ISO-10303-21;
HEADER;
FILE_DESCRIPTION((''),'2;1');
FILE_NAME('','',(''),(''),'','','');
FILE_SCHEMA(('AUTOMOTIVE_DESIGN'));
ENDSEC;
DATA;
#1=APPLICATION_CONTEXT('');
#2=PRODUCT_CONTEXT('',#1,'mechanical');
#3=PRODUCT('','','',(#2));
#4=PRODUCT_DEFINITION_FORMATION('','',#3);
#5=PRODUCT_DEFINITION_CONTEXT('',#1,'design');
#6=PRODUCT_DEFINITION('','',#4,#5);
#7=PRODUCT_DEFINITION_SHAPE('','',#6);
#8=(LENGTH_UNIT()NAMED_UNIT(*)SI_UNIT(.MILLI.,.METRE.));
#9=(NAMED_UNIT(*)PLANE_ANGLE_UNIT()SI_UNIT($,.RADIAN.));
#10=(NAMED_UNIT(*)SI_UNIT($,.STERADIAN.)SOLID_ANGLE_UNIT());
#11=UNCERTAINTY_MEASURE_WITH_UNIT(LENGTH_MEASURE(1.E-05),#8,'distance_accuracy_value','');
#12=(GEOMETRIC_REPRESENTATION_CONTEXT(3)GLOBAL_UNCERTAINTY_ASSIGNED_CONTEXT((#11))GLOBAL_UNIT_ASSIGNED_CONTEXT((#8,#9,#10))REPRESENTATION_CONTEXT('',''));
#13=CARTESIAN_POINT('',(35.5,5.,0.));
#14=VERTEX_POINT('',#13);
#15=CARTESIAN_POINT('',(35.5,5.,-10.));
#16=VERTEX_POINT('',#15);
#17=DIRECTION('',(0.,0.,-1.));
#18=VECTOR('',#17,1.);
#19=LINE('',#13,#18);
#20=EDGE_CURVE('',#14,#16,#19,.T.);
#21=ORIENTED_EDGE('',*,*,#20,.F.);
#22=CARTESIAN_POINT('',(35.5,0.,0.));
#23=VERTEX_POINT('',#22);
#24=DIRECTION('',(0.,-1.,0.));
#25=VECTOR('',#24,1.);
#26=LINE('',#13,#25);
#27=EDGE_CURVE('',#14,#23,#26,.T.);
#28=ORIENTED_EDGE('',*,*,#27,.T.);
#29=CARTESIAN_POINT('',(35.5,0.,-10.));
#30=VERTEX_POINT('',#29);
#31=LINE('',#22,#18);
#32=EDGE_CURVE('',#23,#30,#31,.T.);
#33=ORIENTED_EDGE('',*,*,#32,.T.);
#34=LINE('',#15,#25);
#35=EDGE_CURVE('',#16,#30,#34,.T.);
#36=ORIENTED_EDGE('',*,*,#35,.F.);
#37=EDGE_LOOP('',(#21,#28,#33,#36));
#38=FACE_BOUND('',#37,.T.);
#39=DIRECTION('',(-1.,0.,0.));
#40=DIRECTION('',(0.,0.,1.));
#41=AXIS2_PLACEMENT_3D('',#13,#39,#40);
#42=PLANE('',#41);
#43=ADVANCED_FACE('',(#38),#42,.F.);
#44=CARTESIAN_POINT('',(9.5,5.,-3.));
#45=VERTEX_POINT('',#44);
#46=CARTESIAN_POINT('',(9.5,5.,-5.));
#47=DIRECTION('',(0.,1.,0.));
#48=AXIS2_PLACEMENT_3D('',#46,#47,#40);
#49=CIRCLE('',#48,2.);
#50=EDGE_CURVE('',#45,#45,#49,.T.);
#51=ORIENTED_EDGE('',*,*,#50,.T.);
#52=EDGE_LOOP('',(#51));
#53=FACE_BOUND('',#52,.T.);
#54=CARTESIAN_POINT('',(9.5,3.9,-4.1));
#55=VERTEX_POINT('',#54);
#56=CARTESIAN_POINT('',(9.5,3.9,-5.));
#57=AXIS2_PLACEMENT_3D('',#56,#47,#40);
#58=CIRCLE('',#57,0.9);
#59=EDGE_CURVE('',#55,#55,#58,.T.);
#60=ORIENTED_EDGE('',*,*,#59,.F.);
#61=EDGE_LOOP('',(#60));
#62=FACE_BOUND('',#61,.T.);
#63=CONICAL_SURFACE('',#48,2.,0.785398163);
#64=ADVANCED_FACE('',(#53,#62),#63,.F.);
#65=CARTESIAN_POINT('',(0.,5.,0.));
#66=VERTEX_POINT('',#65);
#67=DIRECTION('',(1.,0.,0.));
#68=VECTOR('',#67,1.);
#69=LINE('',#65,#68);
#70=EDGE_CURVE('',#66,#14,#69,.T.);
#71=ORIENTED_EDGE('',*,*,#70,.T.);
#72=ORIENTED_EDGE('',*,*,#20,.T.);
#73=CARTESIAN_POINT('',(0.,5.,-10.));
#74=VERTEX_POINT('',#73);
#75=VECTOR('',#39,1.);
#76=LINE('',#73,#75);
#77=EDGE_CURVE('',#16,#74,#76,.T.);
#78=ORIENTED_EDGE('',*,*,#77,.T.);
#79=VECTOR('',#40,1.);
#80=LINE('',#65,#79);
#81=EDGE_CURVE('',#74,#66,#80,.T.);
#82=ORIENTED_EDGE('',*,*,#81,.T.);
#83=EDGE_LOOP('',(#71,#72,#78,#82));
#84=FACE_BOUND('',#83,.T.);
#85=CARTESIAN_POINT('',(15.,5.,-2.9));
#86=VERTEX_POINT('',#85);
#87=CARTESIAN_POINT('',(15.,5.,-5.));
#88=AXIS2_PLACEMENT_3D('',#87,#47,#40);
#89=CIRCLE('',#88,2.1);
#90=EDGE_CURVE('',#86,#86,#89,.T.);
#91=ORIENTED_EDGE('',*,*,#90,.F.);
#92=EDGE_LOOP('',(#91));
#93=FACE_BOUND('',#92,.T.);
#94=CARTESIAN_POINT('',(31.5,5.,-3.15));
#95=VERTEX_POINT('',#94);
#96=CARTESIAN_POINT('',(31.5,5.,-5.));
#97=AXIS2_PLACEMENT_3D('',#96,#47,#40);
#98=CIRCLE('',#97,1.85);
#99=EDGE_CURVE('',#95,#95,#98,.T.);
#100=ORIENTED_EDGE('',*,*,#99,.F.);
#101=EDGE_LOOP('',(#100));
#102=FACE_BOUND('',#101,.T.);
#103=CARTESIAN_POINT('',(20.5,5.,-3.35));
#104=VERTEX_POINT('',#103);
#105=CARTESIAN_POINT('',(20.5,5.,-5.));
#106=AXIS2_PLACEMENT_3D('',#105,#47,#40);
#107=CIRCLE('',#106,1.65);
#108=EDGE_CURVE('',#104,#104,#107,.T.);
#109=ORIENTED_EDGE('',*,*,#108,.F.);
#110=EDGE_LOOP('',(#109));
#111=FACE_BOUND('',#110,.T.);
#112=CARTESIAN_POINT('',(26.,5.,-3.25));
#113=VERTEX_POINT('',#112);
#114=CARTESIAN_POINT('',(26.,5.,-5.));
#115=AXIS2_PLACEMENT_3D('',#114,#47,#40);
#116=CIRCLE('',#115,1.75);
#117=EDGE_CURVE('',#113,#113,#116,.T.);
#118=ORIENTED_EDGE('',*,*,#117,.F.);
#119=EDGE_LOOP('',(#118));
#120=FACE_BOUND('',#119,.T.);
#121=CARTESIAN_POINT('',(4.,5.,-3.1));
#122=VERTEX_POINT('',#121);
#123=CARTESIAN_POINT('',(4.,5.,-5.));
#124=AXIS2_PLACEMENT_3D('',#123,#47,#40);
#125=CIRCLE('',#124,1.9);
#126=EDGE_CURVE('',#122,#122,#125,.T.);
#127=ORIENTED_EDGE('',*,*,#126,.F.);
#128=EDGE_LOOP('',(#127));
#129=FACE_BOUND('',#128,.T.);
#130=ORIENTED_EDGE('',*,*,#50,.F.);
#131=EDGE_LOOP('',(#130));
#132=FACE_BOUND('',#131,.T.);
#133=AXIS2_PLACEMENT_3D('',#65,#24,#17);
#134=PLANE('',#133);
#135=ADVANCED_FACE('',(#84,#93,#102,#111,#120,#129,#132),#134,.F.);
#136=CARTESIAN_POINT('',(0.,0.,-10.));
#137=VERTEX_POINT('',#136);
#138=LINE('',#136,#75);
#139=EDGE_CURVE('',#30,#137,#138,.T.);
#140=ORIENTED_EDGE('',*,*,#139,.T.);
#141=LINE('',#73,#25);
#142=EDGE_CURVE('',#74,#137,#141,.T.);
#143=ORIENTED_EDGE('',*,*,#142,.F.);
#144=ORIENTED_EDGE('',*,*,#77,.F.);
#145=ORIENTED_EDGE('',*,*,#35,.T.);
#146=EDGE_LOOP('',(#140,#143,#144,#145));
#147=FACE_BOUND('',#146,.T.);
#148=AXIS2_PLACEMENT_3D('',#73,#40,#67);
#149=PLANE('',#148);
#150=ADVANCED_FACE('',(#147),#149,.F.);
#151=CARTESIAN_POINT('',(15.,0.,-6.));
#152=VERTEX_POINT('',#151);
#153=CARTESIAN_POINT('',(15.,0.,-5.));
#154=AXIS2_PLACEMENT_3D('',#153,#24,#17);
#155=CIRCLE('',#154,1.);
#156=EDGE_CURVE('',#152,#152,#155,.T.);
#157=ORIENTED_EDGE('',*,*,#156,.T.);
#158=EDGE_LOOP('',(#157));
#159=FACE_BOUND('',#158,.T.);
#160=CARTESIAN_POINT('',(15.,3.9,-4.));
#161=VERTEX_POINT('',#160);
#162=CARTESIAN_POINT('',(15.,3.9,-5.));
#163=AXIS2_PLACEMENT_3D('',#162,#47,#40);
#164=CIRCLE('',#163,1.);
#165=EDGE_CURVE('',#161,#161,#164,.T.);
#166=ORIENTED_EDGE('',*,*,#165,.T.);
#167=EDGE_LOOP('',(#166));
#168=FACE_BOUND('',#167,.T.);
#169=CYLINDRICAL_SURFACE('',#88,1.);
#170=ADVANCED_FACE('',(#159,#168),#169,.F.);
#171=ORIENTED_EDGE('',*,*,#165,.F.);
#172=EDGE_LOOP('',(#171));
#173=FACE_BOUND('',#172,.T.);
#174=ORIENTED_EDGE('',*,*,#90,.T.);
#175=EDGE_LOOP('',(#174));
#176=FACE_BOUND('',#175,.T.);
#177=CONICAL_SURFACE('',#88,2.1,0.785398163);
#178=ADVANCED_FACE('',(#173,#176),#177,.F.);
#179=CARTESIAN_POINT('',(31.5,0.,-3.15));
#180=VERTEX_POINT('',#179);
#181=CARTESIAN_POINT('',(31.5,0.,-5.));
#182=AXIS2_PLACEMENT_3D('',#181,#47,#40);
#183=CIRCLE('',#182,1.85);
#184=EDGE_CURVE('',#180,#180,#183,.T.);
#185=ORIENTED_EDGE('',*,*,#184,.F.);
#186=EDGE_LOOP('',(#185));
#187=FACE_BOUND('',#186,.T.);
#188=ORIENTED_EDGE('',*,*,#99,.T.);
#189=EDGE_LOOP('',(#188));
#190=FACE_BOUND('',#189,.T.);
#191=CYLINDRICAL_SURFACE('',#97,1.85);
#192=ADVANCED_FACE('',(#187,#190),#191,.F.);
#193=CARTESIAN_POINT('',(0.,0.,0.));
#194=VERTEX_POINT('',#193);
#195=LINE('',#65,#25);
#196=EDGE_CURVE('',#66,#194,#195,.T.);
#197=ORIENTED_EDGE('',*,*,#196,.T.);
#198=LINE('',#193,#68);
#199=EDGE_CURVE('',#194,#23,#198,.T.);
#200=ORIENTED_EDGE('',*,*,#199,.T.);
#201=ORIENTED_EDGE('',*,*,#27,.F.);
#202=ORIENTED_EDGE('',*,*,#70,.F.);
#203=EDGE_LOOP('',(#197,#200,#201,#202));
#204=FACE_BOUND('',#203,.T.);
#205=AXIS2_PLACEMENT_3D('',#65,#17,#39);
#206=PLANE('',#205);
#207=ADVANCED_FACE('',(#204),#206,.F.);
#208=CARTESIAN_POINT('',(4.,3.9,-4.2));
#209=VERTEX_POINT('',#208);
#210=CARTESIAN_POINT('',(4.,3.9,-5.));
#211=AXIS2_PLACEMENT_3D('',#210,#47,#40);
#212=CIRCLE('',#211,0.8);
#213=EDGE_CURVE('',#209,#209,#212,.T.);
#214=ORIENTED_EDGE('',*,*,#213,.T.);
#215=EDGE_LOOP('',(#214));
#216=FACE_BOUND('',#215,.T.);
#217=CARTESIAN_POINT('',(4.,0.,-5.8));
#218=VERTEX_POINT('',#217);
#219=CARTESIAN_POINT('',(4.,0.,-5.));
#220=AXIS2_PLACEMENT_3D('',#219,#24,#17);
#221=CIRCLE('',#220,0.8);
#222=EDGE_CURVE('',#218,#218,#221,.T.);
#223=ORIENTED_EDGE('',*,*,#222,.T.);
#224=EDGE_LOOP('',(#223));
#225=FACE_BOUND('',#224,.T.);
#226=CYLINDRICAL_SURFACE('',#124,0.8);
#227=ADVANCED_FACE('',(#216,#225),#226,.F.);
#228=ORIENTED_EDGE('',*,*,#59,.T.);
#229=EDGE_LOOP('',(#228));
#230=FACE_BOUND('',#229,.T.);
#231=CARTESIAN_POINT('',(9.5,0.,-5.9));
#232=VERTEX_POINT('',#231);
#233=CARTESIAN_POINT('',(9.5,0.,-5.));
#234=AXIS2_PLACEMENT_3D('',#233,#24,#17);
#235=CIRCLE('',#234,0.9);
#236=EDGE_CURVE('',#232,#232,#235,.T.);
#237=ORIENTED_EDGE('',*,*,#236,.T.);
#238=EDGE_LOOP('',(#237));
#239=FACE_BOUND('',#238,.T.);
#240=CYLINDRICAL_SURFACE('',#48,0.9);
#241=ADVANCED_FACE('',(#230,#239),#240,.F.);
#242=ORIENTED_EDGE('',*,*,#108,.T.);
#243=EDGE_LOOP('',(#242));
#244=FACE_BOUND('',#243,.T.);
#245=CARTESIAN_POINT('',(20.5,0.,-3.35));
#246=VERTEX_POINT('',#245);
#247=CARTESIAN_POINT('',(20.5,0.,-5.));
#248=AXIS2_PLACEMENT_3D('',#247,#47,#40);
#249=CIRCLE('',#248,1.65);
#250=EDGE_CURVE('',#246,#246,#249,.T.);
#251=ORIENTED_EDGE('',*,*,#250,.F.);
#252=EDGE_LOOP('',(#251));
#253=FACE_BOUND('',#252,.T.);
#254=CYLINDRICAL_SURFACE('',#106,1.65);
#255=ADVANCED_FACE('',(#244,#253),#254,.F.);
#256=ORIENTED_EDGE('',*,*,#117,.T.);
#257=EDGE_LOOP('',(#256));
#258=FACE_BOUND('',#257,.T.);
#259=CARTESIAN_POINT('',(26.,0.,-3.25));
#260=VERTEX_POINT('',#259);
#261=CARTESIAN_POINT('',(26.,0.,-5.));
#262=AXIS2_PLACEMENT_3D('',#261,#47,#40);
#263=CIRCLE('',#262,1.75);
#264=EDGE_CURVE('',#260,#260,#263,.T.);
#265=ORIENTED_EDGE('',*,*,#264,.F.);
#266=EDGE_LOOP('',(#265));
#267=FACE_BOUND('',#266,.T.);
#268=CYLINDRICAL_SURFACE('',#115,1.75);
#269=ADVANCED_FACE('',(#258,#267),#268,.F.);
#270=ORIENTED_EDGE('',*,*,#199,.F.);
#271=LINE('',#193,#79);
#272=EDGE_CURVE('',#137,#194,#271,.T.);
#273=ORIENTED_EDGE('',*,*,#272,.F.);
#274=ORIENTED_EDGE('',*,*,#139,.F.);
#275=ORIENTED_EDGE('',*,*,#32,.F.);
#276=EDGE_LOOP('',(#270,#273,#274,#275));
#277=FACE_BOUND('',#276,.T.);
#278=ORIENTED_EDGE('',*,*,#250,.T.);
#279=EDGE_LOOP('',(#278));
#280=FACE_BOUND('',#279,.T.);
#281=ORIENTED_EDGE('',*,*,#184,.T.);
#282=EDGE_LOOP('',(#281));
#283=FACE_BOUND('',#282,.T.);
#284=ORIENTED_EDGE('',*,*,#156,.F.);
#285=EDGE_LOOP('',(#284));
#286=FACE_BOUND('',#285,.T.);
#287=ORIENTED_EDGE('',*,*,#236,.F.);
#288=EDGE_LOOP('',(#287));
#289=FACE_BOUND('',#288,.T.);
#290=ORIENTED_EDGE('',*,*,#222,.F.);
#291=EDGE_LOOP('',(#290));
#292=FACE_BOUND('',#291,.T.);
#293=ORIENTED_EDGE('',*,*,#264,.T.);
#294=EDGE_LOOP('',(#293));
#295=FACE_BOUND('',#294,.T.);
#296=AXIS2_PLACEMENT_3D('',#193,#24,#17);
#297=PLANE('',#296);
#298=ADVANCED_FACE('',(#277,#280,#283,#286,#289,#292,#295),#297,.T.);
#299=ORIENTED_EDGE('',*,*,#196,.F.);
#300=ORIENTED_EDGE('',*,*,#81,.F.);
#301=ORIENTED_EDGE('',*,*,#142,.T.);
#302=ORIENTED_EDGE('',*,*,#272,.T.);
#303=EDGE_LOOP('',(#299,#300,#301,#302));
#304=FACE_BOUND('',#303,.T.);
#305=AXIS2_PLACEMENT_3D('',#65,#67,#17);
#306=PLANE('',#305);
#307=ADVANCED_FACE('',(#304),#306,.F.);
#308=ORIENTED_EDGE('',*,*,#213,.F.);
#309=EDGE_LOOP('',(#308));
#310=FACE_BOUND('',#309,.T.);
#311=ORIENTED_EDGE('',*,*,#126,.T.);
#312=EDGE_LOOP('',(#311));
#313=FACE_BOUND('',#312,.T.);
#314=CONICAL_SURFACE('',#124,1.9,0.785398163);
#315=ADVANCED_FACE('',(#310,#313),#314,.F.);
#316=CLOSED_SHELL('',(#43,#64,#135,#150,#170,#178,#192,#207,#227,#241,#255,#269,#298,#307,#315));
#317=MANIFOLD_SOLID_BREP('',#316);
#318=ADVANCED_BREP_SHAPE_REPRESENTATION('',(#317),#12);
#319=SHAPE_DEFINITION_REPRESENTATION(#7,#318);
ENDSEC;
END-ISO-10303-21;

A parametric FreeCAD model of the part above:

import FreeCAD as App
import Part
import Sketcher
Q = App.Units.Quantity


def add_polygon(sketch, points):
    """Adds a closed chain of lines whose ends are joined by coincident constraints."""
    first, n = sketch.GeometryCount, len(points)
    for a, b in zip(points, points[1:] + points[:1]):
        sketch.addGeometry(Part.LineSegment(App.Vector(*a, 0), App.Vector(*b, 0)), False)
    for i in range(n):
        sketch.addConstraint(Sketcher.Constraint("Coincident", first + i, 2, first + (i + 1) % n, 1))

doc = App.newDocument("Part")
params = doc.addObject("Spreadsheet::Sheet", "Params")
for row, (alias, value) in enumerate([
    ("sketch1_height", "10 mm"),
    ("sketch1_width", "35.5 mm"),
    ("pad1_length", "5 mm"),
    ("sketch2_diameter", "1.8 mm"),
    ("hole_diameter", "1.8 mm"),
    ("hole_depth", "7 mm"),
    ("hole_csink_diameter", "4 mm"),
    ("sketch3_diameter", "2 mm"),
    ("hole2_diameter", "2 mm"),
    ("hole2_depth", "7 mm"),
    ("hole2_csink_diameter", "4.2 mm"),
    ("sketch4_diameter", "1.6 mm"),
    ("hole3_diameter", "1.6 mm"),
    ("hole3_depth", "7 mm"),
    ("hole3_csink_diameter", "3.8 mm"),
    ("sketch5_diameter", "3.3 mm"),
    ("hole4_diameter", "3.3 mm"),
    ("hole4_depth", "5 mm"),
    ("sketch6_diameter", "3.5 mm"),
    ("hole5_diameter", "3.5 mm"),
    ("hole5_depth", "5 mm"),
    ("sketch7_diameter", "3.7 mm"),
    ("hole6_diameter", "3.7 mm"),
    ("hole6_depth", "5 mm"),
], start=1):
    params.set(f"A{row}", alias)
    params.set(f"B{row}", "=" + value)
    params.setAlias(f"B{row}", alias)

body = doc.addObject("PartDesign::Body", "Body")

sketch1 = body.newObject("Sketcher::SketchObject", "Sketch")
sketch1.AttachmentSupport = (doc.getObject("XZ_Plane"), [""])
sketch1.MapMode = "FlatFace"
add_polygon(sketch1, [(0, -10), (0, 0), (36, 0), (36, -10)])
sketch1.addConstraint(Sketcher.Constraint("Vertical", 0))
sketch1.addConstraint(Sketcher.Constraint("Horizontal", 1))
sketch1.addConstraint(Sketcher.Constraint("Vertical", 2))
sketch1.addConstraint(Sketcher.Constraint("Horizontal", 3))
sketch1.addConstraint(Sketcher.Constraint("Coincident", 0, 2, -1, 1))
sketch1.addConstraint(Sketcher.Constraint("DistanceY", 0, 1, 0, 2, Q("10 mm")))
sketch1.addConstraint(Sketcher.Constraint("DistanceX", 1, 1, 1, 2, Q("35.5 mm")))
sketch1.setExpression("Constraints[9]", "Params.sketch1_height")
sketch1.setExpression("Constraints[10]", "Params.sketch1_width")
pad1 = body.newObject("PartDesign::Pad", "Pad")
pad1.Profile = sketch1
pad1.setExpression("Length", "Params.pad1_length")
pad1.Reversed = True

sketch2 = body.newObject("Sketcher::SketchObject", "Sketch001")
sketch2.AttachmentSupport = (doc.getObject("XZ_Plane"), [""])
sketch2.MapMode = "FlatFace"
sketch2.AttachmentOffset = App.Placement(App.Vector(0, 0, -5), App.Rotation())
sketch2.addGeometry(Part.Circle(App.Vector(9.5, -5, 0), App.Vector(0, 0, 1), 0.9), False)
sketch2.addConstraint(Sketcher.Constraint("Diameter", 0, Q("1.8 mm")))
sketch2.addConstraint(Sketcher.Constraint("DistanceY", 0, 3, -1, 1, Q("5 mm")))
sketch2.addConstraint(Sketcher.Constraint("DistanceX", -1, 1, 0, 3, Q("9.5 mm")))
sketch2.setExpression("Constraints[0]", "Params.sketch2_diameter")
doc.recompute()
hole = body.newObject("PartDesign::Hole", "Hole")
hole.Profile = sketch2
hole.ThreadType = "None"
hole.setExpression("Diameter", "Params.hole_diameter")
hole.DepthType = "Dimension"
hole.setExpression("Depth", "Params.hole_depth")
hole.DrillPoint = "Angled"
hole.DrillPointAngle = 118
hole.HoleCutType = "Countersink"
hole.setExpression("HoleCutDiameter", "Params.hole_csink_diameter")
hole.HoleCutCountersinkAngle = 90
hole.Reversed = True

sketch3 = body.newObject("Sketcher::SketchObject", "Sketch002")
sketch3.AttachmentSupport = (doc.getObject("XZ_Plane"), [""])
sketch3.MapMode = "FlatFace"
sketch3.AttachmentOffset = App.Placement(App.Vector(0, 0, -5), App.Rotation())
sketch3.addGeometry(Part.Circle(App.Vector(15, -5, 0), App.Vector(0, 0, 1), 1), False)
sketch3.addConstraint(Sketcher.Constraint("Diameter", 0, Q("2 mm")))
sketch3.addConstraint(Sketcher.Constraint("DistanceX", -1, 1, 0, 3, Q("15 mm")))
sketch3.addConstraint(Sketcher.Constraint("DistanceY", 0, 3, -1, 1, Q("5 mm")))
sketch3.setExpression("Constraints[0]", "Params.sketch3_diameter")
doc.recompute()
hole2 = body.newObject("PartDesign::Hole", "Hole001")
hole2.Profile = sketch3
hole2.ThreadType = "None"
hole2.setExpression("Diameter", "Params.hole2_diameter")
hole2.DepthType = "Dimension"
hole2.setExpression("Depth", "Params.hole2_depth")
hole2.DrillPoint = "Angled"
hole2.DrillPointAngle = 118
hole2.HoleCutType = "Countersink"
hole2.setExpression("HoleCutDiameter", "Params.hole2_csink_diameter")
hole2.HoleCutCountersinkAngle = 90
hole2.Reversed = True

sketch4 = body.newObject("Sketcher::SketchObject", "Sketch003")
sketch4.AttachmentSupport = (doc.getObject("XZ_Plane"), [""])
sketch4.MapMode = "FlatFace"
sketch4.AttachmentOffset = App.Placement(App.Vector(0, 0, -5), App.Rotation())
sketch4.addGeometry(Part.Circle(App.Vector(4, -5, 0), App.Vector(0, 0, 1), 0.8), False)
sketch4.addConstraint(Sketcher.Constraint("Diameter", 0, Q("1.6 mm")))
sketch4.addConstraint(Sketcher.Constraint("DistanceX", -1, 1, 0, 3, Q("4 mm")))
sketch4.addConstraint(Sketcher.Constraint("DistanceY", 0, 3, -1, 1, Q("5 mm")))
sketch4.setExpression("Constraints[0]", "Params.sketch4_diameter")
doc.recompute()
hole3 = body.newObject("PartDesign::Hole", "Hole002")
hole3.Profile = sketch4
hole3.ThreadType = "None"
hole3.setExpression("Diameter", "Params.hole3_diameter")
hole3.DepthType = "Dimension"
hole3.setExpression("Depth", "Params.hole3_depth")
hole3.DrillPoint = "Angled"
hole3.DrillPointAngle = 118
hole3.HoleCutType = "Countersink"
hole3.setExpression("HoleCutDiameter", "Params.hole3_csink_diameter")
hole3.HoleCutCountersinkAngle = 90
hole3.Reversed = True

sketch5 = body.newObject("Sketcher::SketchObject", "Sketch004")
sketch5.AttachmentSupport = (doc.getObject("XZ_Plane"), [""])
sketch5.MapMode = "FlatFace"
sketch5.AttachmentOffset = App.Placement(App.Vector(0, 0, -5), App.Rotation())
sketch5.addGeometry(Part.Circle(App.Vector(20.5, -5, 0), App.Vector(0, 0, 1), 1.6), False)
sketch5.addConstraint(Sketcher.Constraint("Diameter", 0, Q("3.3 mm")))
sketch5.addConstraint(Sketcher.Constraint("DistanceY", 0, 3, -1, 1, Q("5 mm")))
sketch5.addConstraint(Sketcher.Constraint("DistanceX", -1, 1, 0, 3, Q("20.5 mm")))
sketch5.setExpression("Constraints[0]", "Params.sketch5_diameter")
doc.recompute()
hole4 = body.newObject("PartDesign::Hole", "Hole003")
hole4.Profile = sketch5
hole4.ThreadType = "None"
hole4.setExpression("Diameter", "Params.hole4_diameter")
hole4.DepthType = "Dimension"
hole4.setExpression("Depth", "Params.hole4_depth")
hole4.DrillPoint = "Angled"
hole4.DrillPointAngle = 118
hole4.Reversed = True

sketch6 = body.newObject("Sketcher::SketchObject", "Sketch005")
sketch6.AttachmentSupport = (doc.getObject("XZ_Plane"), [""])
sketch6.MapMode = "FlatFace"
sketch6.AttachmentOffset = App.Placement(App.Vector(0, 0, -5), App.Rotation())
sketch6.addGeometry(Part.Circle(App.Vector(26, -5, 0), App.Vector(0, 0, 1), 1.8), False)
sketch6.addConstraint(Sketcher.Constraint("Diameter", 0, Q("3.5 mm")))
sketch6.addConstraint(Sketcher.Constraint("DistanceX", -1, 1, 0, 3, Q("26 mm")))
sketch6.addConstraint(Sketcher.Constraint("DistanceY", 0, 3, -1, 1, Q("5 mm")))
sketch6.setExpression("Constraints[0]", "Params.sketch6_diameter")
doc.recompute()
hole5 = body.newObject("PartDesign::Hole", "Hole004")
hole5.Profile = sketch6
hole5.ThreadType = "None"
hole5.setExpression("Diameter", "Params.hole5_diameter")
hole5.DepthType = "Dimension"
hole5.setExpression("Depth", "Params.hole5_depth")
hole5.DrillPoint = "Angled"
hole5.DrillPointAngle = 118
hole5.Reversed = True

sketch7 = body.newObject("Sketcher::SketchObject", "Sketch006")
sketch7.AttachmentSupport = (doc.getObject("XZ_Plane"), [""])
sketch7.MapMode = "FlatFace"
sketch7.AttachmentOffset = App.Placement(App.Vector(0, 0, -5), App.Rotation())
sketch7.addGeometry(Part.Circle(App.Vector(31.5, -5, 0), App.Vector(0, 0, 1), 1.9), False)
sketch7.addConstraint(Sketcher.Constraint("Diameter", 0, Q("3.7 mm")))
sketch7.addConstraint(Sketcher.Constraint("DistanceY", 0, 3, -1, 1, Q("5 mm")))
sketch7.addConstraint(Sketcher.Constraint("DistanceX", -1, 1, 0, 3, Q("31.5 mm")))
sketch7.setExpression("Constraints[0]", "Params.sketch7_diameter")
doc.recompute()
hole6 = body.newObject("PartDesign::Hole", "Hole005")
hole6.Profile = sketch7
hole6.ThreadType = "None"
hole6.setExpression("Diameter", "Params.hole6_diameter")
hole6.DepthType = "Dimension"
hole6.setExpression("Depth", "Params.hole6_depth")
hole6.DrillPoint = "Angled"
hole6.DrillPointAngle = 118
hole6.Reversed = True

doc.recompute()
